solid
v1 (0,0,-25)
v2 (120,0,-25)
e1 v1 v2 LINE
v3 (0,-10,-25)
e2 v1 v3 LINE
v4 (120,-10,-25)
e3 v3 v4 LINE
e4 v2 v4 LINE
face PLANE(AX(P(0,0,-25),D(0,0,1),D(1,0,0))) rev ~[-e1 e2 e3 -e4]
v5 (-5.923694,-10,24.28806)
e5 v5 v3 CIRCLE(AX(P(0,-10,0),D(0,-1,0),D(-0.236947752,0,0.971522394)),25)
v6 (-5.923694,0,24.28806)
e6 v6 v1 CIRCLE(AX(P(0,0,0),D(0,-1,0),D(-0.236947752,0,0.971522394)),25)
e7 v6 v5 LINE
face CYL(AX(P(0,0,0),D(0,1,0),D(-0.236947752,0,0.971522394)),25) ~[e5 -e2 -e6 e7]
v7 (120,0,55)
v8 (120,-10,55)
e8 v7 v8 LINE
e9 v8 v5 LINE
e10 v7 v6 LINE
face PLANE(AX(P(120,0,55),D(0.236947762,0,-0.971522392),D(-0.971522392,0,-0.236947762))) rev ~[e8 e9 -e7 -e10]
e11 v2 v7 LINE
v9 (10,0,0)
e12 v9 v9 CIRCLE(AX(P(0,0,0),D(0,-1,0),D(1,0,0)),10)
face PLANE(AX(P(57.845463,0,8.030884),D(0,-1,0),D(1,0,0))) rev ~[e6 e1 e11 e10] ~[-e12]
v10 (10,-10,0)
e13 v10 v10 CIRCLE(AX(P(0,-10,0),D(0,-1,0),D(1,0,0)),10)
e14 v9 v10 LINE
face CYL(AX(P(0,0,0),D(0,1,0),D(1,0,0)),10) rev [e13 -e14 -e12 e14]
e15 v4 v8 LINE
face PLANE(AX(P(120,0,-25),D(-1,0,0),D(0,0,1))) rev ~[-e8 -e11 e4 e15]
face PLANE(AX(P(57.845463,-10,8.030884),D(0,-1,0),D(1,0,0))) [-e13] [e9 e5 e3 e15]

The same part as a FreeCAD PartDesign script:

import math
import FreeCAD as App
import Part
import Sketcher

doc = App.newDocument("Part")
body = doc.addObject("PartDesign::Body", "Body")

sketch1 = doc.addObject("Sketcher::SketchObject", "Sketch")
body.addObject(sketch1)
sketch1.AttachmentSupport = (doc.XZ_Plane, [""])
sketch1.MapMode = "FlatFace"
sketch1.addGeometry([
    Part.ArcOfCircle(Part.Circle(App.Vector(0, 0, 0), App.Vector(0, 0, 1), 25), math.radians(104), math.radians(270)),
    Part.LineSegment(App.Vector(0, -25, 0), App.Vector(120, -25, 0)),
    Part.LineSegment(App.Vector(120, -25, 0), App.Vector(120, 55, 0)),
    Part.LineSegment(App.Vector(120, 55, 0), App.Vector(-6, 24, 0)),
    Part.Circle(App.Vector(0, 0, 0), App.Vector(0, 0, 1), 10),
], False)
sketch1.addConstraint([
    Sketcher.Constraint("Tangent", 0, 2, 1, 1),
    Sketcher.Constraint("Coincident", 1, 2, 2, 1),
    Sketcher.Constraint("Coincident", 2, 2, 3, 1),
    Sketcher.Constraint("Tangent", 3, 2, 0, 1),
    Sketcher.Constraint("Horizontal", 1),
    Sketcher.Constraint("Vertical", 2),
    Sketcher.Constraint("Coincident", 0, 3, -1, 1),
    Sketcher.Constraint("Coincident", 4, 3, -1, 1),
    Sketcher.Constraint("Diameter", 4, 20.0),
    Sketcher.Constraint("Radius", 0, 25.0),
    Sketcher.Constraint("DistanceX", 1, 1, 1, 2, 120.0),
    Sketcher.Constraint("DistanceY", 2, 1, 2, 2, 80.0),
])
pad1 = doc.addObject("PartDesign::Pad", "Pad")
body.addObject(pad1)
pad1.Profile = sketch1
pad1.Length = 10

doc.recompute()
